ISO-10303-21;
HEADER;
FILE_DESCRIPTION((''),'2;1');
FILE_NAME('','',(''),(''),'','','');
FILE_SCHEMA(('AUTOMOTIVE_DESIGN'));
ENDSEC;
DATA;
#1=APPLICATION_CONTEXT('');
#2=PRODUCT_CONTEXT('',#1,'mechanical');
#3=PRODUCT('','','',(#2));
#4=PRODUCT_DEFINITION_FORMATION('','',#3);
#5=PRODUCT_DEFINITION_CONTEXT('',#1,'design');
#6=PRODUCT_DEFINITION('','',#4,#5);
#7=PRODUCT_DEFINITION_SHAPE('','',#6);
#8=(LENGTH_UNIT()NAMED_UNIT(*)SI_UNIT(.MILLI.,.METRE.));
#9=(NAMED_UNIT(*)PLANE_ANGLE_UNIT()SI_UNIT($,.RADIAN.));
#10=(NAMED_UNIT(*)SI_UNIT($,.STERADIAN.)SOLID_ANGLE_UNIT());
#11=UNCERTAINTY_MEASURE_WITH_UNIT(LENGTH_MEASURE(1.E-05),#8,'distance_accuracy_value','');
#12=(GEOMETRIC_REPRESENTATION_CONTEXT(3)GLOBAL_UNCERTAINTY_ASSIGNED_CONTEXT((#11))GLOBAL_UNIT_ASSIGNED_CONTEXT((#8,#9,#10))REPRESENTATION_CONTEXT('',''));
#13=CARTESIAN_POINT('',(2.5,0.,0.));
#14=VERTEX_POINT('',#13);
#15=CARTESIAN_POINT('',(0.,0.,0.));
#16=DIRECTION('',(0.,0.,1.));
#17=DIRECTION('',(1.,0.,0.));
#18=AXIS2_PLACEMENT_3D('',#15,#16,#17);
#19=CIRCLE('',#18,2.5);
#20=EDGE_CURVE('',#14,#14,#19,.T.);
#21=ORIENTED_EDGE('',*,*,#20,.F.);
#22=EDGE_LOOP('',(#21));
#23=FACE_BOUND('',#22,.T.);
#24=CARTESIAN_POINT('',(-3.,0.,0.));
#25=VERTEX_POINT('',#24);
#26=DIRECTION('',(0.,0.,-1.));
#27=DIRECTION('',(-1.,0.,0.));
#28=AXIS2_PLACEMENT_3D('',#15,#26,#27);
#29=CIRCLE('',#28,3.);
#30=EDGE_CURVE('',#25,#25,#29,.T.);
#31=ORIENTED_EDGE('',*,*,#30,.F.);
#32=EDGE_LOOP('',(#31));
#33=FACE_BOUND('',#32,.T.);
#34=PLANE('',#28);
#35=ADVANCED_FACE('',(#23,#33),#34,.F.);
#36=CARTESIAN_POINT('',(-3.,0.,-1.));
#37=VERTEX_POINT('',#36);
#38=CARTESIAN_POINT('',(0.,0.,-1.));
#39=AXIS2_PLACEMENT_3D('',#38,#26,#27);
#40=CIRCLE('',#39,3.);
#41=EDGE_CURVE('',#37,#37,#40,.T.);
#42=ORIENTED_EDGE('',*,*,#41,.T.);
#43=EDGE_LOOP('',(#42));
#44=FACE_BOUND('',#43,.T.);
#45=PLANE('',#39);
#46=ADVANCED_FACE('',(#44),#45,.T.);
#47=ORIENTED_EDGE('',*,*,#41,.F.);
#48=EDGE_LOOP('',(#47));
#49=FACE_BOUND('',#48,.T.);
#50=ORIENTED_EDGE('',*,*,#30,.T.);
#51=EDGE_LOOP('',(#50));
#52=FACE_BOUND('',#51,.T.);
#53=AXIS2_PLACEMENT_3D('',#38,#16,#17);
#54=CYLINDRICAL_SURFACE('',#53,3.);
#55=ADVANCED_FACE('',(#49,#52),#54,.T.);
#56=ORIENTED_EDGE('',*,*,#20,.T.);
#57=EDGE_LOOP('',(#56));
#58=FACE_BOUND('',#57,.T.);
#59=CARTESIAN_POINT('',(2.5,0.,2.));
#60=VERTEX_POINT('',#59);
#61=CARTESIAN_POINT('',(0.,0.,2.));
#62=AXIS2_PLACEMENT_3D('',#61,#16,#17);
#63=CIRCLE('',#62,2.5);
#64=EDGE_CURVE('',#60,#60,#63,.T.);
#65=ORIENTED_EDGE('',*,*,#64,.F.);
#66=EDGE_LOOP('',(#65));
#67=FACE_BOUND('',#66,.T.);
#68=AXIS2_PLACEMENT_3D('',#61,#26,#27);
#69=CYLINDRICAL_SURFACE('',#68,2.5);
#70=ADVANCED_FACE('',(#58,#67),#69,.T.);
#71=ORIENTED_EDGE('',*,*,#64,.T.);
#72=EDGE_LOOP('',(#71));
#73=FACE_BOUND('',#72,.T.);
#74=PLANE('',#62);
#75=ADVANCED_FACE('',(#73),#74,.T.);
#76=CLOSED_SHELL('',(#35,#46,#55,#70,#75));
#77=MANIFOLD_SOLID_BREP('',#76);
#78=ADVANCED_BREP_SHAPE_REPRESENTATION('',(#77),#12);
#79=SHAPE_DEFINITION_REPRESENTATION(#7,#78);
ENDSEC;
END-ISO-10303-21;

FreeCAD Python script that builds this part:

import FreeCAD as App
import Part
import Sketcher
from FreeCAD import Vector
Q = App.Units.Quantity

doc = App.newDocument("Part")
params = doc.addObject("Spreadsheet::Sheet", "Params")
for row, (alias, value) in enumerate([
    ("sketch1_diameter", "5 mm"),
    ("pad1_length", "2 mm"),
    ("sketch2_diameter", "6 mm"),
    ("pad2_length", "1 mm"),
], start=1):
    params.set(f"A{row}", alias)
    params.set(f"B{row}", "=" + value)
    params.setAlias(f"B{row}", alias)

body = doc.addObject("PartDesign::Body", "Body")

# Sketch on XY plane
sketch1 = body.newObject("Sketcher::SketchObject", "Sketch")
sketch1.AttachmentSupport = (doc.getObject("XY_Plane"), [""])
sketch1.MapMode = "FlatFace"
sketch1.addGeometry(Part.Circle(Vector(0, 0, 0), Vector(0, 0, 1), 2.5), False)
sketch1.addConstraint(Sketcher.Constraint("Coincident", 0, 3, -1, 1))
sketch1.addConstraint(Sketcher.Constraint("Diameter", 0, Q("5 mm")))
sketch1.setExpression("Constraints[1]", "Params.sketch1_diameter")
pad1 = body.newObject("PartDesign::Pad", "Pad")
pad1.Profile = sketch1
pad1.setExpression("Length", "Params.pad1_length")

# Sketch on XY plane
sketch2 = body.newObject("Sketcher::SketchObject", "Sketch001")
sketch2.AttachmentSupport = (doc.getObject("XY_Plane"), [""])
sketch2.MapMode = "FlatFace"
sketch2.addGeometry(Part.Circle(Vector(0, 0, 0), Vector(0, 0, 1), 3), False)
sketch2.addConstraint(Sketcher.Constraint("Coincident", 0, 3, -1, 1))
sketch2.addConstraint(Sketcher.Constraint("Diameter", 0, Q("6 mm")))
sketch2.setExpression("Constraints[1]", "Params.sketch2_diameter")
pad2 = body.newObject("PartDesign::Pad", "Pad001")
pad2.Profile = sketch2
pad2.setExpression("Length", "Params.pad2_length")
pad2.Reversed = True

doc.recompute()
